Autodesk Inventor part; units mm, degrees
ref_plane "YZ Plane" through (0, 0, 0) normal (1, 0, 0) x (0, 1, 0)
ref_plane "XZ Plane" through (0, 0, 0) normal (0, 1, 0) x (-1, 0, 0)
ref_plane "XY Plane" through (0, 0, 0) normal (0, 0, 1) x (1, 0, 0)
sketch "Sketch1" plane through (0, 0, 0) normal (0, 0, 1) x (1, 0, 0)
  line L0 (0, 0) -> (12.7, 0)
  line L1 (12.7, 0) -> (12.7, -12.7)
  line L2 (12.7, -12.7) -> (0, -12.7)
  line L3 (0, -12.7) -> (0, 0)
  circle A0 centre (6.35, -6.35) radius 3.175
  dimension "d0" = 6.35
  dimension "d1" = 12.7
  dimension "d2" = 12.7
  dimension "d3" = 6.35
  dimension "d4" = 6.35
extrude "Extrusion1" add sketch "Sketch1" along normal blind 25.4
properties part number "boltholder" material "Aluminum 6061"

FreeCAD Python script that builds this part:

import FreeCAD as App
import Part
import Sketcher
Q = App.Units.Quantity


def add_polygon(sketch, points):
    """Adds a closed chain of lines whose ends are joined by coincident constraints."""
    first, n = sketch.GeometryCount, len(points)
    for a, b in zip(points, points[1:] + points[:1]):
        sketch.addGeometry(Part.LineSegment(App.Vector(*a, 0), App.Vector(*b, 0)), False)
    for i in range(n):
        sketch.addConstraint(Sketcher.Constraint("Coincident", first + i, 2, first + (i + 1) % n, 1))

doc = App.newDocument("Part")
body = doc.addObject("PartDesign::Body", "Body")

sketch1 = doc.addObject("Sketcher::SketchObject", "Sketch")
body.addObject(sketch1)
sketch1.AttachmentSupport = (doc.XY_Plane, [""])
sketch1.MapMode = "FlatFace"
add_polygon(sketch1, [(12.7, 0), (0, 0), (0, -12.7), (12.7, -12.7)])
sketch1.addGeometry(Part.Circle(App.Vector(6.3, -6.3, 0), App.Vector(0, 0, 1), 3.2), False)
sketch1.addConstraint([
    Sketcher.Constraint("Horizontal", 0),
    Sketcher.Constraint("Vertical", 1),
    Sketcher.Constraint("Horizontal", 2),
    Sketcher.Constraint("Vertical", 3),
    Sketcher.Constraint("Coincident", 0, 2, -1, 1),
    Sketcher.Constraint("Equal", 2, 1),
    Sketcher.Constraint("Diameter", 4, Q("0.25 in")),
    Sketcher.Constraint("DistanceX", 0, 2, 0, 1, Q("0.5 in")),
    Sketcher.Constraint("DistanceX", -1, 1, 4, 3, Q("0.25 in")),
    Sketcher.Constraint("DistanceY", 4, 3, -1, 1, Q("0.25 in")),
])
pad1 = doc.addObject("PartDesign::Pad", "Pad")
body.addObject(pad1)
pad1.Profile = sketch1
pad1.Length = Q("1 in")

doc.recompute()
